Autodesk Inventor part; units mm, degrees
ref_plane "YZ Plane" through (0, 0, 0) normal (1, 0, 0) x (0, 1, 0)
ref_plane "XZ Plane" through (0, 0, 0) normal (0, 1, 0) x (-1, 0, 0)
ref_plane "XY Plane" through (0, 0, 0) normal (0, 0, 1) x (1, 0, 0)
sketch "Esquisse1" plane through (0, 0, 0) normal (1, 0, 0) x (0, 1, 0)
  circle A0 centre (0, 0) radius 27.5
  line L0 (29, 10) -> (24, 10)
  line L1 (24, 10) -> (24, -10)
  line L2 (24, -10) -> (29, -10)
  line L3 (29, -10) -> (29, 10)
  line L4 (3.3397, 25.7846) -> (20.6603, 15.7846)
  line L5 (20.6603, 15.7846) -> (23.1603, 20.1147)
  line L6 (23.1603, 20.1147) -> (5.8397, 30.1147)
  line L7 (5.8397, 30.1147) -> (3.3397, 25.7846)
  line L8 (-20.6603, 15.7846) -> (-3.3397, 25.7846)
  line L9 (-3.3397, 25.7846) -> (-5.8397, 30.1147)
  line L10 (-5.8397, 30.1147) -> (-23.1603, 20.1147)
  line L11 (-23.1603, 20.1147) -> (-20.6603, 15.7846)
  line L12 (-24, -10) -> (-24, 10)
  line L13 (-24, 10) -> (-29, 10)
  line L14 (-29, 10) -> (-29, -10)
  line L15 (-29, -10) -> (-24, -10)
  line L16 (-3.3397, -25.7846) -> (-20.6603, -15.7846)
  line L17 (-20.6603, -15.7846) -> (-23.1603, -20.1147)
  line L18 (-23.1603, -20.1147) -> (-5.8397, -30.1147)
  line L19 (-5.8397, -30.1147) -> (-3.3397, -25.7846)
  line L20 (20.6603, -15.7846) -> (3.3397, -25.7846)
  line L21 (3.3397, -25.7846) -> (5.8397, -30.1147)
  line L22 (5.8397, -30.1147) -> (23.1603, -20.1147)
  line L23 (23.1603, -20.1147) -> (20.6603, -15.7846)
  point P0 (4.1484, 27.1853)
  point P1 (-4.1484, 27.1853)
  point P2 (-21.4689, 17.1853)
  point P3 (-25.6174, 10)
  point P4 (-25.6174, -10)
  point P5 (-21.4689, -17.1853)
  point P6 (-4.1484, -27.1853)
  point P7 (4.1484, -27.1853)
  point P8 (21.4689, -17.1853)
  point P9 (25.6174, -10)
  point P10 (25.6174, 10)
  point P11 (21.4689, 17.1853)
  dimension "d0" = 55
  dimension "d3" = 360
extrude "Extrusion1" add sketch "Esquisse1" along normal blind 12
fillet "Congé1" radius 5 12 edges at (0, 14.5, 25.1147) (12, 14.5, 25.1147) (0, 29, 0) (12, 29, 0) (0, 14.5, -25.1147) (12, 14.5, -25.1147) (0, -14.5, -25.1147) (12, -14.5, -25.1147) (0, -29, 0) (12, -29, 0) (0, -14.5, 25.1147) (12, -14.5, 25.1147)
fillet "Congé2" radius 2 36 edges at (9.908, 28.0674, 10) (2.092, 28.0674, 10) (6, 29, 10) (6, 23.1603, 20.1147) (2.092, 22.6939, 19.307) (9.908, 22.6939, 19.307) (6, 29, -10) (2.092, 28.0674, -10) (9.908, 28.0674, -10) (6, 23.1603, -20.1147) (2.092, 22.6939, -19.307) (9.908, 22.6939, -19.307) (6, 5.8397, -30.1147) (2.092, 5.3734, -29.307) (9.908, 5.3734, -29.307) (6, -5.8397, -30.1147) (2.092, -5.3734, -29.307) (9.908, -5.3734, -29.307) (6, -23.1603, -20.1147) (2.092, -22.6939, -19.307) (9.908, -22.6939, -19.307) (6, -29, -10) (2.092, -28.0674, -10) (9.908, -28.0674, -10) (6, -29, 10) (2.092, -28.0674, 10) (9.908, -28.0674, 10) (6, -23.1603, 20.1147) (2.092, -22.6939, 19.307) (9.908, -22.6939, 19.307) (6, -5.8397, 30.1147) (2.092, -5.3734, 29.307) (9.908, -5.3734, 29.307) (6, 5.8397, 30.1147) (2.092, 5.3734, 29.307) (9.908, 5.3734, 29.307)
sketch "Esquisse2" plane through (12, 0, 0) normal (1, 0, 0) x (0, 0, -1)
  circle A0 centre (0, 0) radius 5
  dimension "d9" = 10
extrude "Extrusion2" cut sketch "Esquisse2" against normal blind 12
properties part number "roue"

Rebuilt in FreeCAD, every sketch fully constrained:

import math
import FreeCAD as App
import Part
import Sketcher

V = App.Vector
Q = App.Units.Quantity


def edges_at(feature, points):
    """Names of the edges that pass closest to the given points."""
    edges = feature.Shape.Edges
    near = lambda p: min(range(len(edges)), key=lambda i: edges[i].distToShape(Part.Vertex(*p))[0])
    return sorted({f"Edge{near(p) + 1}" for p in points})

doc = App.newDocument("Part")
body = doc.addObject("PartDesign::Body", "Body")

# Sketch on YZ plane
sketch1 = doc.addObject("Sketcher::SketchObject", "Sketch")
body.addObject(sketch1)
sketch1.AttachmentSupport = (doc.YZ_Plane, [""])
sketch1.MapMode = "FlatFace"
sketch1.addGeometry([
    Part.LineSegment(V(25.6, -10, 0), V(29, -10, 0)),  # 0
    Part.LineSegment(V(29, -10, 0), V(29, 10, 0)),  # 1
    Part.LineSegment(V(29, 10, 0), V(25.6, 10, 0)),  # 2
    Part.ArcOfCircle(Part.Circle(V(0, 0, 0), V(0, 0, 1), 27.5), math.radians(21.32), math.radians(38.68)),  # 3
    Part.LineSegment(V(21.5, 17.2, 0), V(23.2, 20.1, 0)),  # 4
    Part.LineSegment(V(23.2, 20.1, 0), V(5.8, 30.1, 0)),  # 5
    Part.LineSegment(V(5.8, 30.1, 0), V(4.1, 27.2, 0)),  # 6
    Part.ArcOfCircle(Part.Circle(V(0, 0, 0), V(0, 0, 1), 27.5), math.radians(81.32), math.radians(98.68)),  # 7
    Part.LineSegment(V(-4.1, 27.2, 0), V(-5.8, 30.1, 0)),  # 8
    Part.LineSegment(V(-5.8, 30.1, 0), V(-23.2, 20.1, 0)),  # 9
    Part.LineSegment(V(-23.2, 20.1, 0), V(-21.5, 17.2, 0)),  # 10
    Part.ArcOfCircle(Part.Circle(V(0, 0, 0), V(0, 0, 1), 27.5), math.radians(141.32), math.radians(158.68)),  # 11
    Part.LineSegment(V(-25.6, 10, 0), V(-29, 10, 0)),  # 12
    Part.LineSegment(V(-29, 10, 0), V(-29, -10, 0)),  # 13
    Part.LineSegment(V(-29, -10, 0), V(-25.6, -10, 0)),  # 14
    Part.ArcOfCircle(Part.Circle(V(0, 0, 0), V(0, 0, 1), 27.5), math.radians(-158.68), math.radians(-141.32)),  # 15
    Part.LineSegment(V(-21.5, -17.2, 0), V(-23.2, -20.1, 0)),  # 16
    Part.LineSegment(V(-23.2, -20.1, 0), V(-5.8, -30.1, 0)),  # 17
    Part.LineSegment(V(-5.8, -30.1, 0), V(-4.1, -27.2, 0)),  # 18
    Part.ArcOfCircle(Part.Circle(V(0, 0, 0), V(0, 0, 1), 27.5), math.radians(-98.68), math.radians(-81.32)),  # 19
    Part.LineSegment(V(4.1, -27.2, 0), V(5.8, -30.1, 0)),  # 20
    Part.LineSegment(V(5.8, -30.1, 0), V(23.2, -20.1, 0)),  # 21
    Part.LineSegment(V(23.2, -20.1, 0), V(21.5, -17.2, 0)),  # 22
    Part.ArcOfCircle(Part.Circle(V(0, 0, 0), V(0, 0, 1), 27.5), math.radians(-38.68), math.radians(-21.32)),  # 23
], False)
sketch1.addConstraint([
    Sketcher.Constraint("Coincident", 0, 2, 1, 1),
    Sketcher.Constraint("Coincident", 1, 2, 2, 1),
    Sketcher.Constraint("Coincident", 2, 2, 3, 1),
    Sketcher.Constraint("Coincident", 3, 2, 4, 1),
    Sketcher.Constraint("Coincident", 4, 2, 5, 1),
    Sketcher.Constraint("Coincident", 5, 2, 6, 1),
    Sketcher.Constraint("Coincident", 6, 2, 7, 1),
    Sketcher.Constraint("Coincident", 7, 2, 8, 1),
    Sketcher.Constraint("Coincident", 8, 2, 9, 1),
    Sketcher.Constraint("Coincident", 9, 2, 10, 1),
    Sketcher.Constraint("Coincident", 10, 2, 11, 1),
    Sketcher.Constraint("Coincident", 11, 2, 12, 1),
    Sketcher.Constraint("Coincident", 12, 2, 13, 1),
    Sketcher.Constraint("Coincident", 13, 2, 14, 1),
    Sketcher.Constraint("Coincident", 14, 2, 15, 1),
    Sketcher.Constraint("Coincident", 15, 2, 16, 1),
    Sketcher.Constraint("Coincident", 16, 2, 17, 1),
    Sketcher.Constraint("Coincident", 17, 2, 18, 1),
    Sketcher.Constraint("Coincident", 18, 2, 19, 1),
    Sketcher.Constraint("Coincident", 19, 2, 20, 1),
    Sketcher.Constraint("Coincident", 20, 2, 21, 1),
    Sketcher.Constraint("Coincident", 21, 2, 22, 1),
    Sketcher.Constraint("Coincident", 22, 2, 23, 1),
    Sketcher.Constraint("Coincident", 23, 2, 0, 1),
    Sketcher.Constraint("Horizontal", 0),
    Sketcher.Constraint("Vertical", 1),
    Sketcher.Constraint("Horizontal", 2),
    Sketcher.Constraint("Horizontal", 12),
    Sketcher.Constraint("Vertical", 13),
    Sketcher.Constraint("Horizontal", 14),
    Sketcher.Constraint("Coincident", 3, 3, -1, 1),
    Sketcher.Constraint("Coincident", 7, 3, -1, 1),
    Sketcher.Constraint("Coincident", 11, 3, -1, 1),
    Sketcher.Constraint("Coincident", 15, 3, -1, 1),
    Sketcher.Constraint("Coincident", 19, 3, -1, 1),
    Sketcher.Constraint("Coincident", 23, 3, -1, 1),
    Sketcher.Constraint("Equal", 3, 7),
    Sketcher.Constraint("Equal", 7, 11),
    Sketcher.Constraint("Equal", 11, 15),
    Sketcher.Constraint("Equal", 15, 19),
    Sketcher.Constraint("Equal", 19, 23),
    Sketcher.Constraint("Symmetric", 0, 2, 12, 2, -1, 1),
    Sketcher.Constraint("Symmetric", 4, 2, 16, 2, -1, 1),
    Sketcher.Constraint("Symmetric", 5, 2, 17, 2, -1, 1),
    Sketcher.Constraint("Symmetric", 8, 2, 20, 2, -1, 1),
    Sketcher.Constraint("Symmetric", 9, 2, 21, 2, -1, 1),
    Sketcher.Constraint("Symmetric", 5, 2, 8, 2, -2),
    Sketcher.Constraint("Symmetric", 4, 2, 9, 2, -2),
    Sketcher.Constraint("Perpendicular", 4, 5),
    Sketcher.Constraint("Perpendicular", 5, 6),
    Sketcher.Constraint("Perpendicular", 8, 9),
    Sketcher.Constraint("Perpendicular", 9, 10),
    Sketcher.Constraint("Parallel", 6, 16),
    Sketcher.Constraint("Perpendicular", 17, 18),
    Sketcher.Constraint("Parallel", 10, 20),
    Sketcher.Constraint("Perpendicular", 21, 22),
    Sketcher.Constraint("Horizontal", 2, 2, 11, 2),
    Sketcher.Constraint("Horizontal", 0, 2, 13, 2),
    Sketcher.Constraint("Equal", 4, 6),
    Sketcher.Constraint("Radius", 3, 27.5),
    Sketcher.Constraint("DistanceY", 1, 1, 1, 2, 20.0),
    Sketcher.Constraint("Angle", 4, Q("59.9998 deg")),
    Sketcher.Constraint("Distance", 5, 20.0),
    Sketcher.Constraint("DistanceX", -1, 1, 0, 2, 29.0),
    Sketcher.Constraint("DistanceX", 9, 2, 5, 2, 29.0),
])
pad1 = doc.addObject("PartDesign::Pad", "Pad")
body.addObject(pad1)
pad1.Profile = sketch1
pad1.Length = 12
doc.recompute()

fillet = doc.addObject("PartDesign::Fillet", "Fillet")
body.addObject(fillet)
fillet.Base = (pad1, edges_at(pad1, [
    (0, 14.5, 25.115),
    (12, 14.5, 25.115),
    (0, 29, 0),
    (12, 29, 0),
    (0, 14.5, -25.115),
    (12, 14.5, -25.115),
    (0, -14.5, -25.115),
    (12, -14.5, -25.115),
    (0, -29, 0),
    (12, -29, 0),
    (0, -14.5, 25.115),
    (12, -14.5, 25.115),
]))
fillet.Radius = 5
doc.recompute()

fillet2 = doc.addObject("PartDesign::Fillet", "Fillet001")
body.addObject(fillet2)
fillet2.Base = (fillet, edges_at(fillet, [
    (9.908, 28.067, 10),
    (2.092, 28.067, 10),
    (6, 29, 10),
    (6, 23.16, 20.115),
    (2.092, 22.694, 19.307),
    (9.908, 22.694, 19.307),
    (6, 29, -10),
    (2.092, 28.067, -10),
    (9.908, 28.067, -10),
    (6, 23.16, -20.115),
    (2.092, 22.694, -19.307),
    (9.908, 22.694, -19.307),
    (6, 5.84, -30.115),
    (2.092, 5.373, -29.307),
    (9.908, 5.373, -29.307),
    (6, -5.84, -30.115),
    (2.092, -5.373, -29.307),
    (9.908, -5.373, -29.307),
    (6, -23.16, -20.115),
    (2.092, -22.694, -19.307),
    (9.908, -22.694, -19.307),
    (6, -29, -10),
    (2.092, -28.067, -10),
    (9.908, -28.067, -10),
    (6, -29, 10),
    (2.092, -28.067, 10),
    (9.908, -28.067, 10),
    (6, -23.16, 20.115),
    (2.092, -22.694, 19.307),
    (9.908, -22.694, 19.307),
    (6, -5.84, 30.115),
    (2.092, -5.373, 29.307),
    (9.908, -5.373, 29.307),
    (6, 5.84, 30.115),
    (2.092, 5.373, 29.307),
    (9.908, 5.373, 29.307),
]))
fillet2.Radius = 2

# Sketch on YZ plane
sketch2 = doc.addObject("Sketcher::SketchObject", "Sketch001")
body.addObject(sketch2)
sketch2.AttachmentSupport = (doc.YZ_Plane, [""])
sketch2.MapMode = "FlatFace"
sketch2.AttachmentOffset = App.Placement(V(0, 0, 12), App.Rotation())
sketch2.addGeometry(Part.Circle(V(0, 0, 0), V(0, 0, 1), 5), False)
sketch2.addConstraint([
    Sketcher.Constraint("Coincident", 0, 3, -1, 1),
    Sketcher.Constraint("Diameter", 0, 10.0),
])
pocket1 = doc.addObject("PartDesign::Pocket", "Pocket")
body.addObject(pocket1)
pocket1.Profile = sketch2
pocket1.Length = 12

doc.recompute()
